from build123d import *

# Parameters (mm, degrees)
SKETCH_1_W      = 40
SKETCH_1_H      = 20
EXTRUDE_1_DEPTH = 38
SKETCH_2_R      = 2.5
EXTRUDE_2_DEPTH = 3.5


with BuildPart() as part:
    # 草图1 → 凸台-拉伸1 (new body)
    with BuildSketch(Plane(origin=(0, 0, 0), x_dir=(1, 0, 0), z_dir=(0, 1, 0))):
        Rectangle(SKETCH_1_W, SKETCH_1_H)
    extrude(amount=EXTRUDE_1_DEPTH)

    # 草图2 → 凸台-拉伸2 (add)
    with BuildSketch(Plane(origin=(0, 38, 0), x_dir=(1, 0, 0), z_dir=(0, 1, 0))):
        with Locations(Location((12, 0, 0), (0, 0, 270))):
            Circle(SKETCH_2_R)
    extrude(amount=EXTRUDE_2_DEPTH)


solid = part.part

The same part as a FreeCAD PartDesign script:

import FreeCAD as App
import Part
import Sketcher

V = App.Vector
Q = App.Units.Quantity


def add_polygon(sketch, points):
    """Adds a closed chain of lines whose ends are joined by coincident constraints."""
    first, n = sketch.GeometryCount, len(points)
    for a, b in zip(points, points[1:] + points[:1]):
        sketch.addGeometry(Part.LineSegment(App.Vector(*a, 0), App.Vector(*b, 0)), False)
    for i in range(n):
        sketch.addConstraint(Sketcher.Constraint("Coincident", first + i, 2, first + (i + 1) % n, 1))

doc = App.newDocument("Part")
body = doc.addObject("PartDesign::Body", "Body")

# Sketch on XZ plane
sketch1 = body.newObject("Sketcher::SketchObject", "Sketch")
sketch1.AttachmentSupport = (doc.getObject("XZ_Plane"), [""])
sketch1.MapMode = "FlatFace"
add_polygon(sketch1, [(-20, -10), (-20, 10), (20, 10), (20, -10)])  # lines 0-3
sketch1.addConstraint([
    Sketcher.Constraint("Vertical", 0),
    Sketcher.Constraint("Horizontal", 1),
    Sketcher.Constraint("Vertical", 2),
    Sketcher.Constraint("Horizontal", 3),
    Sketcher.Constraint("Symmetric", 0, 2, 2, 2, -1, 1),
    Sketcher.Constraint("DistanceX", 1, 1, 1, 2, Q("40 mm")),
    Sketcher.Constraint("DistanceY", 0, 1, 0, 2, Q("20 mm")),
])
pad1 = body.newObject("PartDesign::Pad", "Pad")
pad1.Profile = sketch1
pad1.Length = 38
pad1.Reversed = True

# Sketch on XZ plane
sketch2 = body.newObject("Sketcher::SketchObject", "Sketch001")
sketch2.AttachmentSupport = (doc.getObject("XZ_Plane"), [""])
sketch2.MapMode = "FlatFace"
sketch2.AttachmentOffset = App.Placement(V(0, 0, -38), App.Rotation())
sketch2.addGeometry(Part.Circle(V(12, 0, 0), V(0, 0, 1), 2.5), False)
sketch2.addConstraint([
    Sketcher.Constraint("PointOnObject", 0, 3, -1),
    Sketcher.Constraint("Diameter", 0, Q("5 mm")),
    Sketcher.Constraint("DistanceX", -1, 1, 0, 3, Q("12 mm")),
])
pad2 = body.newObject("PartDesign::Pad", "Pad001")
pad2.Profile = sketch2
pad2.Length = 3.5
pad2.Reversed = True

doc.recompute()
